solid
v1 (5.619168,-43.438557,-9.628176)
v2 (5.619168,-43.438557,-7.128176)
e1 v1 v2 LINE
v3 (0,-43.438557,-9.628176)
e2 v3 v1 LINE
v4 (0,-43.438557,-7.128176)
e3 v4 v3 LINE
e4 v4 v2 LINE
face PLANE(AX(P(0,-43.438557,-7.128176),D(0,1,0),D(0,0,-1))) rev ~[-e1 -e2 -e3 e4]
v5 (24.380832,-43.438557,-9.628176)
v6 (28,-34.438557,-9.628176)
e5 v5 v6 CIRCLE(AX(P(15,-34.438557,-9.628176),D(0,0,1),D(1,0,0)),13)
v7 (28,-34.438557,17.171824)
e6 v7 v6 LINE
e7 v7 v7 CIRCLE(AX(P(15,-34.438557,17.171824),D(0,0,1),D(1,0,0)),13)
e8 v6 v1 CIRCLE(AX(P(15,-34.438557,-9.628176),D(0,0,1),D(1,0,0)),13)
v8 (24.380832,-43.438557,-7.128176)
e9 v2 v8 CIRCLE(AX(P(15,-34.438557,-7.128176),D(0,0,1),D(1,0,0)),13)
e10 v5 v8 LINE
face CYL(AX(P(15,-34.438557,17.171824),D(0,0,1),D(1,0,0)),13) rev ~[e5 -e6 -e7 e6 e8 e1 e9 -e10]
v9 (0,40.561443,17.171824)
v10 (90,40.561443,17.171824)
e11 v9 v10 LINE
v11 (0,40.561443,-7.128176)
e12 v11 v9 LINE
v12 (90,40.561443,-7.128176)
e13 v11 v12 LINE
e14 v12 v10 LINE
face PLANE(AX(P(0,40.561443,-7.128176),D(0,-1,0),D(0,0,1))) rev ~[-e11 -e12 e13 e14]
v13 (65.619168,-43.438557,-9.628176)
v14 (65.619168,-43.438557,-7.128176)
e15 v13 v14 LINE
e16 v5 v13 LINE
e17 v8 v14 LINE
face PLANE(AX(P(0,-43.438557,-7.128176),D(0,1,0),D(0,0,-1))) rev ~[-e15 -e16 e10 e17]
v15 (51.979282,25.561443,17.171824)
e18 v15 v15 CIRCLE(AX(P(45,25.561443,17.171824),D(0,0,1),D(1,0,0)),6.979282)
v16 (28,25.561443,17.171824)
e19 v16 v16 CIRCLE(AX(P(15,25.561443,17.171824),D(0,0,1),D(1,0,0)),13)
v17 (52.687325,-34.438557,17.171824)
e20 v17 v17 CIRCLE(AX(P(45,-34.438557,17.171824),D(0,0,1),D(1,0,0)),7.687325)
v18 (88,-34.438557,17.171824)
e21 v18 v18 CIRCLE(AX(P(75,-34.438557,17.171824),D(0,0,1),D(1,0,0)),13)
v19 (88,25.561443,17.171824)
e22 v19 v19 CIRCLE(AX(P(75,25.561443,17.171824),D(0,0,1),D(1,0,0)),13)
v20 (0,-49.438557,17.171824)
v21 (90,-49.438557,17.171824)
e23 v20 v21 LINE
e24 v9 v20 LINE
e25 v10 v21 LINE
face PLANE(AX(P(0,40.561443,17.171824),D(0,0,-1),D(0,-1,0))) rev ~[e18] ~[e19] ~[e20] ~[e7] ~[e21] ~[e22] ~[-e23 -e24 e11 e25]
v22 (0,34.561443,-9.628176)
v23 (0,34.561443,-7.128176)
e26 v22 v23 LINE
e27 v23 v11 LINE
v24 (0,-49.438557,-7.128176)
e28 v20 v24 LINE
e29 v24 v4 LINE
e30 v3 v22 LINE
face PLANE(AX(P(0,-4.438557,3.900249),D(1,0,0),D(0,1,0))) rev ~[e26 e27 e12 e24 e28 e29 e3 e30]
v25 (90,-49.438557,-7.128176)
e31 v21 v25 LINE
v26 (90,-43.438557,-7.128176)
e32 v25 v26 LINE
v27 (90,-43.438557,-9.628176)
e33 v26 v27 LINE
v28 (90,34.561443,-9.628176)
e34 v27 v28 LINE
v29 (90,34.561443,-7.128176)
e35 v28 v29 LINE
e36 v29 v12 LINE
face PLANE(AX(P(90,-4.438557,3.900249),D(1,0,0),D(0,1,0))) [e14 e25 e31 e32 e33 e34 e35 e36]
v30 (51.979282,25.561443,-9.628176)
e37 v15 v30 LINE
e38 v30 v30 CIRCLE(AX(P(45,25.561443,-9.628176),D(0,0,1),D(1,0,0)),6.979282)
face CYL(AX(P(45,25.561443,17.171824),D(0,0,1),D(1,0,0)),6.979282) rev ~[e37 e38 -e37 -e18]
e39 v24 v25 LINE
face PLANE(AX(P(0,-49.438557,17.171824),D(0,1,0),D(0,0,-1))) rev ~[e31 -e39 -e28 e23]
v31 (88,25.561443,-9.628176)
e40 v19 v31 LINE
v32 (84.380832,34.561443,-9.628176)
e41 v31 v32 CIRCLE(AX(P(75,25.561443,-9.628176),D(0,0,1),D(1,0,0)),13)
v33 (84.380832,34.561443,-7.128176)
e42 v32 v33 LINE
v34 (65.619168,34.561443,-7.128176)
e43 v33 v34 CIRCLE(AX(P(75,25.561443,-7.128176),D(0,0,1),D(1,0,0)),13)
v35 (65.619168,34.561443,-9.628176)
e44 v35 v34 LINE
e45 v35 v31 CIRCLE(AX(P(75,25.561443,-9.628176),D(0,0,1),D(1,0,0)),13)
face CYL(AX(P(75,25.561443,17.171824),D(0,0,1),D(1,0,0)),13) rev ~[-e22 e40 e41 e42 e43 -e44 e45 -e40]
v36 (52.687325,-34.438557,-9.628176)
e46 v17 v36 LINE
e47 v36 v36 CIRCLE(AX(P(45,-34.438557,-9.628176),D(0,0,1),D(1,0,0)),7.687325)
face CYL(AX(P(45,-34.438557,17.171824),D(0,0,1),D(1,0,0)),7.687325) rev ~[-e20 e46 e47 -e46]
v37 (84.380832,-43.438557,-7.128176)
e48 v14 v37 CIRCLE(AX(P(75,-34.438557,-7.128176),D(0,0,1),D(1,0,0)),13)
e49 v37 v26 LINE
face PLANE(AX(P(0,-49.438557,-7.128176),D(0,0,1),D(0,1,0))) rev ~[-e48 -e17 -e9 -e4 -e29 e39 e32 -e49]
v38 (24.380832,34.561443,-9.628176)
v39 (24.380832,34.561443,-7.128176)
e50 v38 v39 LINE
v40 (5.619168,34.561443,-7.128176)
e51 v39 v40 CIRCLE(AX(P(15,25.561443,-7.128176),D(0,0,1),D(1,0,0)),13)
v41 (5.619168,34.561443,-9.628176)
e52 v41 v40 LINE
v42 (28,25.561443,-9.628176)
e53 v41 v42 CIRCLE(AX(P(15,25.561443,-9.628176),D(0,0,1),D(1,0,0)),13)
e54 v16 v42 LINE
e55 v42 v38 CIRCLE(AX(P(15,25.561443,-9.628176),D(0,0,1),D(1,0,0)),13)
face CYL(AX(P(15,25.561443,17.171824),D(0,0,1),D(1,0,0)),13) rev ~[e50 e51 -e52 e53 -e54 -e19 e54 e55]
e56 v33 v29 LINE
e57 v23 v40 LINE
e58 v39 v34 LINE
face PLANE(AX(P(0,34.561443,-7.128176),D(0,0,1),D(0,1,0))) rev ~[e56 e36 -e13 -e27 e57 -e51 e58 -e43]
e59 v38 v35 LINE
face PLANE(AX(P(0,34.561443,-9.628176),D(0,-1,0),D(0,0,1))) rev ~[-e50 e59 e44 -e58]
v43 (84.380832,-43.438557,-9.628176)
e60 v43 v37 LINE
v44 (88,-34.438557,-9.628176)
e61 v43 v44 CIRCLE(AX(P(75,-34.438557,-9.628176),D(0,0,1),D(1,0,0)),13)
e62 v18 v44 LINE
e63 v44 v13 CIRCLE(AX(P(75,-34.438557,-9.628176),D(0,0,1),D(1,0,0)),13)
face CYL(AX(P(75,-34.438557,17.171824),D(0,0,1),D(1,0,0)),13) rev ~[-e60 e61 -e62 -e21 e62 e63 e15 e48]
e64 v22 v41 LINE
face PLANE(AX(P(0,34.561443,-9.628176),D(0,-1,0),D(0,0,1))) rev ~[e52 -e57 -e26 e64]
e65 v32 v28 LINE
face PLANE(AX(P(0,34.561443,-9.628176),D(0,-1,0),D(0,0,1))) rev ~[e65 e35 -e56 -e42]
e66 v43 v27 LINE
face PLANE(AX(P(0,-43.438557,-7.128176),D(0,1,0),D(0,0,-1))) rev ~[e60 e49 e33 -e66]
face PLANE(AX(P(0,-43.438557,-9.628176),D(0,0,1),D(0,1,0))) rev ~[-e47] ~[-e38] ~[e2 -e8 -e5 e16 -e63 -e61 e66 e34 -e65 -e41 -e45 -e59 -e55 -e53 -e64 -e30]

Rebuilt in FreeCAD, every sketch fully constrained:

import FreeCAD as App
import Part
import Sketcher
from FreeCAD import Vector
Q = App.Units.Quantity


def add_polygon(sketch, points):
    """Adds a closed chain of lines whose ends are joined by coincident constraints."""
    first, n = sketch.GeometryCount, len(points)
    for a, b in zip(points, points[1:] + points[:1]):
        sketch.addGeometry(Part.LineSegment(App.Vector(*a, 0), App.Vector(*b, 0)), False)
    for i in range(n):
        sketch.addConstraint(Sketcher.Constraint("Coincident", first + i, 2, first + (i + 1) % n, 1))

doc = App.newDocument("Part")
params = doc.addObject("Spreadsheet::Sheet", "Params")
for row, (alias, value) in enumerate([
    ("sketch1_width", "78 mm"),
    ("sketch1_width2", "6 mm"),
    ("sketch1_height", "2.5 mm"),
    ("sketch1_height2", "24.3 mm"),
    ("pad1_length", "90 mm"),
    ("sketch2_diameter", "26 mm"),
], start=1):
    params.set(f"A{row}", alias)
    params.set(f"B{row}", "=" + value)
    params.setAlias(f"B{row}", alias)

body = doc.addObject("PartDesign::Body", "Body")

# Sketch on YZ plane
sketch1 = doc.addObject("Sketcher::SketchObject", "Sketch")
body.addObject(sketch1)
sketch1.AttachmentSupport = (doc.YZ_Plane, [""])
sketch1.MapMode = "FlatFace"
add_polygon(sketch1, [(-43.4, -7.1), (-43.4, -9.6), (34.6, -9.6), (34.6, -7.1), (40.6, -7.1), (40.6, 17.2), (-49.4, 17.2), (-49.4, -7.1)])  # lines 0-7
sketch1.addConstraint(Sketcher.Constraint("Vertical", 0))
sketch1.addConstraint(Sketcher.Constraint("Horizontal", 1))
sketch1.addConstraint(Sketcher.Constraint("Vertical", 2))
sketch1.addConstraint(Sketcher.Constraint("Horizontal", 3))
sketch1.addConstraint(Sketcher.Constraint("Vertical", 4))
sketch1.addConstraint(Sketcher.Constraint("Horizontal", 5))
sketch1.addConstraint(Sketcher.Constraint("Vertical", 6))
sketch1.addConstraint(Sketcher.Constraint("Horizontal", 7))
sketch1.addConstraint(Sketcher.Constraint("Horizontal", 3, 2, 6, 2))
sketch1.addConstraint(Sketcher.Constraint("Equal", 3, 7))
sketch1.addConstraint(Sketcher.Constraint("DistanceX", 1, 1, 1, 2, Q("78 mm")))
sketch1.addConstraint(Sketcher.Constraint("DistanceX", 3, 1, 3, 2, Q("6 mm")))
sketch1.addConstraint(Sketcher.Constraint("DistanceY", 0, 2, 0, 1, Q("2.5 mm")))
sketch1.addConstraint(Sketcher.Constraint("DistanceY", 4, 1, 4, 2, Q("24.3 mm")))
sketch1.addConstraint(Sketcher.Constraint("DistanceX", 0, 2, -1, 1, Q("43.438557 mm")))
sketch1.addConstraint(Sketcher.Constraint("DistanceY", 0, 2, -1, 1, Q("9.628176 mm")))
sketch1.setExpression("Constraints[18]", "Params.sketch1_width")
sketch1.setExpression("Constraints[19]", "Params.sketch1_width2")
sketch1.setExpression("Constraints[20]", "Params.sketch1_height")
sketch1.setExpression("Constraints[21]", "Params.sketch1_height2")
pad1 = doc.addObject("PartDesign::Pad", "Pad")
body.addObject(pad1)
pad1.Profile = sketch1
pad1.setExpression("Length", "Params.pad1_length")

# Sketch on XY plane
sketch2 = doc.addObject("Sketcher::SketchObject", "Sketch001")
body.addObject(sketch2)
sketch2.AttachmentSupport = (doc.XY_Plane, [""])
sketch2.MapMode = "FlatFace"
sketch2.AttachmentOffset = App.Placement(Vector(0, 0, 17.171824), App.Rotation())
sketch2.addGeometry(Part.Circle(Vector(75, 26, 0), Vector(0, 0, 1), 13), False)
sketch2.addGeometry(Part.Circle(Vector(15, -34, 0), Vector(0, 0, 1), 13), False)
sketch2.addGeometry(Part.Circle(Vector(75, -34, 0), Vector(0, 0, 1), 13), False)
sketch2.addGeometry(Part.Circle(Vector(45, -34, 0), Vector(0, 0, 1), 8), False)
sketch2.addGeometry(Part.Circle(Vector(45, 26, 0), Vector(0, 0, 1), 7), False)
sketch2.addGeometry(Part.Circle(Vector(15, 26, 0), Vector(0, 0, 1), 13), False)
sketch2.addConstraint(Sketcher.Constraint("Equal", 0, 1))
sketch2.addConstraint(Sketcher.Constraint("Equal", 1, 2))
sketch2.addConstraint(Sketcher.Constraint("Equal", 2, 5))
sketch2.addConstraint(Sketcher.Constraint("Horizontal", 1, 3, 2, 3))
sketch2.addConstraint(Sketcher.Constraint("Horizontal", 2, 3, 3, 3))
sketch2.addConstraint(Sketcher.Constraint("Horizontal", 0, 3, 4, 3))
sketch2.addConstraint(Sketcher.Constraint("Horizontal", 4, 3, 5, 3))
sketch2.addConstraint(Sketcher.Constraint("Vertical", 0, 3, 2, 3))
sketch2.addConstraint(Sketcher.Constraint("Vertical", 3, 3, 4, 3))
sketch2.addConstraint(Sketcher.Constraint("Vertical", 1, 3, 5, 3))
sketch2.addConstraint(Sketcher.Constraint("Diameter", 0, Q("26 mm")))
sketch2.addConstraint(Sketcher.Constraint("DistanceX", -1, 1, 0, 3, Q("75 mm")))
sketch2.addConstraint(Sketcher.Constraint("DistanceX", -1, 1, 1, 3, Q("15 mm")))
sketch2.addConstraint(Sketcher.Constraint("DistanceX", -1, 1, 3, 3, Q("45 mm")))
sketch2.addConstraint(Sketcher.Constraint("DistanceY", 1, 3, 0, 3, Q("60 mm")))
sketch2.addConstraint(Sketcher.Constraint("Diameter", 3, Q("15.37465 mm")))
sketch2.addConstraint(Sketcher.Constraint("Diameter", 4, Q("13.958564 mm")))
sketch2.addConstraint(Sketcher.Constraint("DistanceY", -1, 1, 0, 3, Q("25.561443 mm")))
sketch2.setExpression("Constraints[10]", "Params.sketch2_diameter")
pocket1 = doc.addObject("PartDesign::Pocket", "Pocket")
body.addObject(pocket1)
pocket1.Profile = sketch2
pocket1.Type = "ThroughAll"

doc.recompute()
